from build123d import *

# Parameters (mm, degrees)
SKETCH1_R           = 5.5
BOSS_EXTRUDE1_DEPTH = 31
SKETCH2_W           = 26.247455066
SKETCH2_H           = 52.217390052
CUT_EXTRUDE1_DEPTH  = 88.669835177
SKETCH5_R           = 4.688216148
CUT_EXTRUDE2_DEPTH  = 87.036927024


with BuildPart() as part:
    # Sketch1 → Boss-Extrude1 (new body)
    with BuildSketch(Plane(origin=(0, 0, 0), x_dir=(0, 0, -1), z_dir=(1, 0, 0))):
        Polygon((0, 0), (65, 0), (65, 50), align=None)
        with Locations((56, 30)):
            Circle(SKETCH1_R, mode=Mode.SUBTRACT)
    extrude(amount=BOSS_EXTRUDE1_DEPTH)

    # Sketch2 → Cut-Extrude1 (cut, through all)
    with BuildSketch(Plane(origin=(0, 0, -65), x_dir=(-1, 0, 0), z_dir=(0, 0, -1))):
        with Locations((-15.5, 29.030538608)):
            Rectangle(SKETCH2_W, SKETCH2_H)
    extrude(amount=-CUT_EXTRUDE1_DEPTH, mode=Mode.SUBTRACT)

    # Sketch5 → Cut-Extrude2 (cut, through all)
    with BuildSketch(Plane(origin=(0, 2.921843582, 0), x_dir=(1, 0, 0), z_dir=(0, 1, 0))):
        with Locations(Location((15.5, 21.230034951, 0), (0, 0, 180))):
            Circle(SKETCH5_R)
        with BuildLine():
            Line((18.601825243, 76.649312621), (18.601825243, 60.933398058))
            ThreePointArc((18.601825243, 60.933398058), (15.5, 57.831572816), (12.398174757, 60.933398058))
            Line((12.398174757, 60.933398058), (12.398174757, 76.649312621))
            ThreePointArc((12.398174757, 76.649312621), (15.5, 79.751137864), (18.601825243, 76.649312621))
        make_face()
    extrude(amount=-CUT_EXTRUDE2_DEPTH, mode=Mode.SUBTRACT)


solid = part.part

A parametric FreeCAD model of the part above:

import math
import FreeCAD as App
import Part
import Sketcher
Q = App.Units.Quantity

doc = App.newDocument("Part")
params = doc.addObject("Spreadsheet::Sheet", "Params")
for row, (alias, value) in enumerate([
    ("sketch1_diameter", "11 mm"),
    ("sketch1_width", "50 mm"),
    ("sketch1_height", "65 mm"),
    ("pad1_length", "31 mm"),
], start=1):
    params.set(f"A{row}", alias)
    params.set(f"B{row}", "=" + value)
    params.setAlias(f"B{row}", alias)

body = doc.addObject("PartDesign::Body", "Body")

sketch1 = body.newObject("Sketcher::SketchObject", "Sketch")
sketch1.AttachmentSupport = (doc.getObject("YZ_Plane"), [""])
sketch1.MapMode = "FlatFace"
sketch1.addGeometry([
    Part.LineSegment(App.Vector(0, 0, 0), App.Vector(0, -65, 0)),
    Part.LineSegment(App.Vector(0, -65, 0), App.Vector(50, -65, 0)),
    Part.LineSegment(App.Vector(50, -65, 0), App.Vector(0, 0, 0)),
    Part.Circle(App.Vector(30, -56, 0), App.Vector(0, 0, 1), 6),
], False)
sketch1.addConstraint([
    Sketcher.Constraint("Coincident", 0, 2, 1, 1),
    Sketcher.Constraint("Coincident", 1, 2, 2, 1),
    Sketcher.Constraint("Coincident", 2, 2, 0, 1),
    Sketcher.Constraint("Vertical", 0),
    Sketcher.Constraint("Horizontal", 1),
    Sketcher.Constraint("Coincident", 2, 2, -1, 1),
    Sketcher.Constraint("Diameter", 3, Q("11 mm")),
    Sketcher.Constraint("DistanceX", 1, 1, 1, 2, Q("50 mm")),
    Sketcher.Constraint("DistanceY", 0, 2, 0, 1, Q("65 mm")),
    Sketcher.Constraint("DistanceX", -1, 1, 3, 3, Q("30 mm")),
    Sketcher.Constraint("DistanceY", 3, 3, -1, 1, Q("56 mm")),
])
sketch1.setExpression("Constraints[6]", "Params.sketch1_diameter")
sketch1.setExpression("Constraints[7]", "Params.sketch1_width")
sketch1.setExpression("Constraints[8]", "Params.sketch1_height")
pad1 = body.newObject("PartDesign::Pad", "Pad")
pad1.Profile = sketch1
pad1.setExpression("Length", "Params.pad1_length")

sketch2 = body.newObject("Sketcher::SketchObject", "Sketch001")
sketch2.AttachmentSupport = (doc.getObject("XY_Plane"), [""])
sketch2.MapMode = "FlatFace"
sketch2.AttachmentOffset = App.Placement(App.Vector(0, 0, -65), App.Rotation())
sketch2.addGeometry([
    Part.LineSegment(App.Vector(29, 55, 0), App.Vector(29, 3, 0)),
    Part.LineSegment(App.Vector(29, 3, 0), App.Vector(2, 3, 0)),
    Part.LineSegment(App.Vector(2, 3, 0), App.Vector(2, 55, 0)),
    Part.LineSegment(App.Vector(2, 55, 0), App.Vector(29, 55, 0)),
], False)
sketch2.addConstraint([
    Sketcher.Constraint("Coincident", 0, 2, 1, 1),
    Sketcher.Constraint("Coincident", 1, 2, 2, 1),
    Sketcher.Constraint("Coincident", 2, 2, 3, 1),
    Sketcher.Constraint("Coincident", 3, 2, 0, 1),
    Sketcher.Constraint("Vertical", 0),
    Sketcher.Constraint("Horizontal", 1),
    Sketcher.Constraint("Vertical", 2),
    Sketcher.Constraint("Horizontal", 3),
    Sketcher.Constraint("DistanceY", 0, 2, 0, 1, Q("52.21739 mm")),
    Sketcher.Constraint("DistanceX", 1, 2, 1, 1, Q("26.247455 mm")),
    Sketcher.Constraint("DistanceX", -1, 1, 0, 2, Q("28.623728 mm")),
    Sketcher.Constraint("DistanceY", -1, 1, 0, 2, Q("2.921844 mm")),
])
pocket1 = body.newObject("PartDesign::Pocket", "Pocket")
pocket1.Profile = sketch2
pocket1.Type = "ThroughAll"
pocket1.Reversed = True

sketch3 = body.newObject("Sketcher::SketchObject", "Sketch002")
sketch3.AttachmentSupport = (doc.getObject("XZ_Plane"), [""])
sketch3.MapMode = "FlatFace"
sketch3.AttachmentOffset = App.Placement(App.Vector(0, 0, -2.921844), App.Rotation())
sketch3.addGeometry([
    Part.Circle(App.Vector(15.5, -21.2, 0), App.Vector(0, 0, 1), 4.7),
    Part.LineSegment(App.Vector(18.6, -60.9, 0), App.Vector(18.6, -76.6, 0)),
    Part.ArcOfCircle(Part.Circle(App.Vector(15.5, -76.6, 0), App.Vector(0, 0, 1), 3.1), math.radians(180), math.radians(360)),
    Part.LineSegment(App.Vector(12.4, -76.6, 0), App.Vector(12.4, -60.9, 0)),
    Part.ArcOfCircle(Part.Circle(App.Vector(15.5, -60.9, 0), App.Vector(0, 0, 1), 3.1), math.radians(0), math.radians(180)),
], False)
sketch3.addConstraint([
    Sketcher.Constraint("Tangent", 1, 2, 2, 2),
    Sketcher.Constraint("Tangent", 2, 1, 3, 1),
    Sketcher.Constraint("Tangent", 3, 2, 4, 2),
    Sketcher.Constraint("Tangent", 4, 1, 1, 1),
    Sketcher.Constraint("Vertical", 1),
    Sketcher.Constraint("Vertical", 3),
    Sketcher.Constraint("Vertical", 0, 3, 2, 3),
    Sketcher.Constraint("DistanceX", -1, 1, 0, 3, Q("15.5 mm")),
    Sketcher.Constraint("Diameter", 0, Q("9.376432 mm")),
    Sketcher.Constraint("Radius", 2, Q("3.101825 mm")),
    Sketcher.Constraint("DistanceY", 4, 3, -1, 1, Q("60.933398 mm")),
    Sketcher.Constraint("DistanceY", 1, 2, 1, 1, Q("15.715915 mm")),
    Sketcher.Constraint("DistanceY", 0, 3, -1, 1, Q("21.230035 mm")),
])
pocket2 = body.newObject("PartDesign::Pocket", "Pocket001")
pocket2.Profile = sketch3
pocket2.Type = "ThroughAll"
pocket2.Reversed = True

doc.recompute()
